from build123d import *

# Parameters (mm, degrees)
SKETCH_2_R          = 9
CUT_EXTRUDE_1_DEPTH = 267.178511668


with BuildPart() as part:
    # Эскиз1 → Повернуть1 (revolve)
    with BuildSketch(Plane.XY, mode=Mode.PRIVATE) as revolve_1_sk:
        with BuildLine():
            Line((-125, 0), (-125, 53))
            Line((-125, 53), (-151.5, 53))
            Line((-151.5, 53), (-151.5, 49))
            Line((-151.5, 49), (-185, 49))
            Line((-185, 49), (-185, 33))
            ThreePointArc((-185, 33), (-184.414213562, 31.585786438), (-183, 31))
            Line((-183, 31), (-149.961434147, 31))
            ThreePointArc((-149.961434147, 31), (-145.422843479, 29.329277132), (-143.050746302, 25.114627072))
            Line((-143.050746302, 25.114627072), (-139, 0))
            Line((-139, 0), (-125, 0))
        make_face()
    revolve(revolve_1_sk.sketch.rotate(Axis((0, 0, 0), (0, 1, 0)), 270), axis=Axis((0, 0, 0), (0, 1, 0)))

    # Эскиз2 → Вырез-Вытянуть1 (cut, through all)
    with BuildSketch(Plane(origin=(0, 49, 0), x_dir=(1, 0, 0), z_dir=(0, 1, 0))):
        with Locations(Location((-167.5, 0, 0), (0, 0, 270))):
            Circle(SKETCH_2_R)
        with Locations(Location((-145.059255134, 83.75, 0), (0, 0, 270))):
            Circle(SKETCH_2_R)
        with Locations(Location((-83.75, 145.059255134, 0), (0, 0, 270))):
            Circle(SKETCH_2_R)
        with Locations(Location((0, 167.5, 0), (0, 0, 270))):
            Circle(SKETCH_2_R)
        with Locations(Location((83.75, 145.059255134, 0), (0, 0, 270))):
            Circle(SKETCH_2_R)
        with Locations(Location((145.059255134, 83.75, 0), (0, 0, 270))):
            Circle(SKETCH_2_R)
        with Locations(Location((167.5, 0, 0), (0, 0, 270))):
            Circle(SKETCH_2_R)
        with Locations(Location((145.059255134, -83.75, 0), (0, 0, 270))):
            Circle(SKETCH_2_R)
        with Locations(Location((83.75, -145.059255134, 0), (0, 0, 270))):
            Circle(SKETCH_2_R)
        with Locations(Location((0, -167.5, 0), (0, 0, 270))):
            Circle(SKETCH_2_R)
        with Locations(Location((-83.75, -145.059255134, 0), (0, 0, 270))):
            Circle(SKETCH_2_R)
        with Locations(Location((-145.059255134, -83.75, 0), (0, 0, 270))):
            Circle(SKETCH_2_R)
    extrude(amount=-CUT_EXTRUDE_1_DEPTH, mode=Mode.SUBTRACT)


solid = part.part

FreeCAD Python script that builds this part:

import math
import FreeCAD as App
import Part
import Sketcher
Q = App.Units.Quantity

doc = App.newDocument("Part")
body = doc.addObject("PartDesign::Body", "Body")

# Sketch on XY plane
sketch1 = body.newObject("Sketcher::SketchObject", "Sketch")
sketch1.AttachmentSupport = (doc.getObject("XY_Plane"), [""])
sketch1.MapMode = "FlatFace"
sketch1.addGeometry([
    Part.LineSegment(App.Vector(-125, 0, 0), App.Vector(-125, 53, 0)),  # 0
    Part.LineSegment(App.Vector(-125, 53, 0), App.Vector(-151.5, 53, 0)),  # 1
    Part.LineSegment(App.Vector(-151.5, 53, 0), App.Vector(-151.5, 49, 0)),  # 2
    Part.LineSegment(App.Vector(-151.5, 49, 0), App.Vector(-185, 49, 0)),  # 3
    Part.LineSegment(App.Vector(-185, 49, 0), App.Vector(-185, 33, 0)),  # 4
    Part.ArcOfCircle(Part.Circle(App.Vector(-183, 33, 0), App.Vector(0, 0, 1), 2), math.radians(-180), math.radians(-90)),  # 5
    Part.LineSegment(App.Vector(-183, 31, 0), App.Vector(-150, 31, 0)),  # 6
    Part.ArcOfCircle(Part.Circle(App.Vector(-150, 24, 0), App.Vector(0, 0, 1), 7), math.radians(9), math.radians(90)),  # 7
    Part.LineSegment(App.Vector(-143.1, 25.1, 0), App.Vector(-139, 0, 0)),  # 8
    Part.LineSegment(App.Vector(-139, 0, 0), App.Vector(-125, 0, 0)),  # 9
], False)
sketch1.addConstraint([
    Sketcher.Constraint("Coincident", 0, 2, 1, 1),
    Sketcher.Constraint("Coincident", 1, 2, 2, 1),
    Sketcher.Constraint("Coincident", 2, 2, 3, 1),
    Sketcher.Constraint("Coincident", 3, 2, 4, 1),
    Sketcher.Constraint("Tangent", 4, 2, 5, 1),
    Sketcher.Constraint("Tangent", 5, 2, 6, 1),
    Sketcher.Constraint("Tangent", 6, 2, 7, 2),
    Sketcher.Constraint("Tangent", 7, 1, 8, 1),
    Sketcher.Constraint("Coincident", 8, 2, 9, 1),
    Sketcher.Constraint("Coincident", 9, 2, 0, 1),
    Sketcher.Constraint("Vertical", 0),
    Sketcher.Constraint("Horizontal", 1),
    Sketcher.Constraint("Vertical", 2),
    Sketcher.Constraint("Horizontal", 3),
    Sketcher.Constraint("Vertical", 4),
    Sketcher.Constraint("Horizontal", 6),
    Sketcher.Constraint("Horizontal", 9),
    Sketcher.Constraint("PointOnObject", 8, 2, -1),
    Sketcher.Constraint("Radius", 5, Q("2 mm")),
    Sketcher.Constraint("Radius", 7, Q("7 mm")),
    Sketcher.Constraint("DistanceX", 9, 1, 9, 2, Q("14 mm")),
    Sketcher.Constraint("DistanceY", 0, 1, 0, 2, Q("53 mm")),
    Sketcher.Constraint("DistanceY", 2, 2, 2, 1, Q("4 mm")),
    Sketcher.Constraint("DistanceY", 4, 2, 4, 1, Q("16 mm")),
    Sketcher.Constraint("DistanceX", 1, 2, 1, 1, Q("26.5 mm")),
    Sketcher.Constraint("DistanceX", 3, 2, 3, 1, Q("33.5 mm")),
    Sketcher.Constraint("DistanceX", 5, 3, -1, 1, Q("183 mm")),
    Sketcher.Constraint("DistanceX", 6, 1, 6, 2, Q("33.038566 mm")),
])
revolution = body.newObject("PartDesign::Revolution", "Revolution")
revolution.Profile = sketch1
revolution.ReferenceAxis = (sketch1, ["V_Axis"])
revolution.Angle = 360

# Sketch on XZ plane
sketch2 = body.newObject("Sketcher::SketchObject", "Sketch001")
sketch2.AttachmentSupport = (doc.getObject("XZ_Plane"), [""])
sketch2.MapMode = "FlatFace"
sketch2.AttachmentOffset = App.Placement(App.Vector(0, 0, -49), App.Rotation())
sketch2.addGeometry([
    Part.Circle(App.Vector(-168, 0, 0), App.Vector(0, 0, 1), 9),  # 0
    Part.Circle(App.Vector(-145, -84, 0), App.Vector(0, 0, 1), 9),  # 1
    Part.Circle(App.Vector(-84, -145, 0), App.Vector(0, 0, 1), 9),  # 2
    Part.Circle(App.Vector(0, -168, 0), App.Vector(0, 0, 1), 9),  # 3
    Part.Circle(App.Vector(84, -145, 0), App.Vector(0, 0, 1), 9),  # 4
    Part.Circle(App.Vector(145, -84, 0), App.Vector(0, 0, 1), 9),  # 5
    Part.Circle(App.Vector(168, 0, 0), App.Vector(0, 0, 1), 9),  # 6
    Part.Circle(App.Vector(145, 84, 0), App.Vector(0, 0, 1), 9),  # 7
    Part.Circle(App.Vector(84, 145, 0), App.Vector(0, 0, 1), 9),  # 8
    Part.Circle(App.Vector(0, 168, 0), App.Vector(0, 0, 1), 9),  # 9
    Part.Circle(App.Vector(-84, 145, 0), App.Vector(0, 0, 1), 9),  # 10
    Part.Circle(App.Vector(-145, 84, 0), App.Vector(0, 0, 1), 9),  # 11
], False)
sketch2.addConstraint([
    Sketcher.Constraint("Equal", 0, 1),
    Sketcher.Constraint("Equal", 1, 2),
    Sketcher.Constraint("Equal", 2, 3),
    Sketcher.Constraint("Equal", 3, 4),
    Sketcher.Constraint("Equal", 4, 5),
    Sketcher.Constraint("Equal", 5, 6),
    Sketcher.Constraint("Equal", 6, 7),
    Sketcher.Constraint("Equal", 7, 8),
    Sketcher.Constraint("Equal", 8, 9),
    Sketcher.Constraint("Equal", 9, 10),
    Sketcher.Constraint("Equal", 10, 11),
    Sketcher.Constraint("Symmetric", 0, 3, 6, 3, -1, 1),
    Sketcher.Constraint("Symmetric", 1, 3, 7, 3, -1, 1),
    Sketcher.Constraint("Symmetric", 2, 3, 8, 3, -1, 1),
    Sketcher.Constraint("Symmetric", 3, 3, 9, 3, -1, 1),
    Sketcher.Constraint("Symmetric", 4, 3, 10, 3, -1, 1),
    Sketcher.Constraint("Symmetric", 5, 3, 11, 3, -1, 1),
    Sketcher.Constraint("Symmetric", 2, 3, 4, 3, -2),
    Sketcher.Constraint("Symmetric", 1, 3, 5, 3, -2),
    Sketcher.Constraint("PointOnObject", 0, 3, -1),
    Sketcher.Constraint("PointOnObject", 3, 3, -2),
    Sketcher.Constraint("Diameter", 0, Q("18 mm")),
    Sketcher.Constraint("DistanceX", 0, 3, -1, 1, Q("167.5 mm")),
    Sketcher.Constraint("DistanceY", 3, 3, -1, 1, Q("167.5 mm")),
    Sketcher.Constraint("DistanceX", 2, 3, 4, 3, Q("167.5 mm")),
    Sketcher.Constraint("DistanceY", 5, 3, 7, 3, Q("167.5 mm")),
    Sketcher.Constraint("DistanceX", 1, 3, 5, 3, Q("290.11851 mm")),
    Sketcher.Constraint("DistanceY", 4, 3, 8, 3, Q("290.11851 mm")),
])
pocket1 = body.newObject("PartDesign::Pocket", "Pocket")
pocket1.Profile = sketch2
pocket1.Type = "ThroughAll"
pocket1.Reversed = True

doc.recompute()
